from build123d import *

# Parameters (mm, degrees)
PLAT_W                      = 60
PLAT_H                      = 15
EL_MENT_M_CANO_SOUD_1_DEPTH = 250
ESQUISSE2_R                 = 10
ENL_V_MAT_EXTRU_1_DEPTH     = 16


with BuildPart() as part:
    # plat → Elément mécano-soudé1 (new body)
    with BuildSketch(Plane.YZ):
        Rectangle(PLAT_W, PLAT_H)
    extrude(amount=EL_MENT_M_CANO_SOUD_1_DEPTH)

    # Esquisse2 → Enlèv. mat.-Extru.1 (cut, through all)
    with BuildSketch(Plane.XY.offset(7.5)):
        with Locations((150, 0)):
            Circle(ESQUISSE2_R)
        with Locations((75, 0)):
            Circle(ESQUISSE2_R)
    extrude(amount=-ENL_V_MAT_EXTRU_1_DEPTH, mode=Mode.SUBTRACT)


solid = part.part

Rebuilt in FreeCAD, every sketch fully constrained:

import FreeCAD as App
import Part
import Sketcher

V = App.Vector


def add_polygon(sketch, points):
    """Adds a closed chain of lines whose ends are joined by coincident constraints."""
    first, n = sketch.GeometryCount, len(points)
    for a, b in zip(points, points[1:] + points[:1]):
        sketch.addGeometry(Part.LineSegment(App.Vector(*a, 0), App.Vector(*b, 0)), False)
    for i in range(n):
        sketch.addConstraint(Sketcher.Constraint("Coincident", first + i, 2, first + (i + 1) % n, 1))

doc = App.newDocument("Part")
params = doc.addObject("Spreadsheet::Sheet", "Params")
for row, (alias, value) in enumerate([
    ("sketch1_width", "60 mm"),
    ("sketch1_height", "15 mm"),
    ("pad1_length", "250 mm"),
    ("sketch2_diameter", "20 mm"),
], start=1):
    params.set(f"A{row}", alias)
    params.set(f"B{row}", "=" + value)
    params.setAlias(f"B{row}", alias)

body = doc.addObject("PartDesign::Body", "Body")

sketch1 = body.newObject("Sketcher::SketchObject", "Sketch")
sketch1.AttachmentSupport = (doc.getObject("YZ_Plane"), [""])
sketch1.MapMode = "FlatFace"
add_polygon(sketch1, [(-30, 8), (-30, -8), (30, -8), (30, 8)])
sketch1.addConstraint([
    Sketcher.Constraint("Vertical", 0),
    Sketcher.Constraint("Horizontal", 1),
    Sketcher.Constraint("Vertical", 2),
    Sketcher.Constraint("Horizontal", 3),
    Sketcher.Constraint("Symmetric", 0, 2, 2, 2, -1, 1),
    Sketcher.Constraint("DistanceX", 1, 1, 1, 2, 60.0),
    Sketcher.Constraint("DistanceY", 0, 2, 0, 1, 15.0),
])
sketch1.setExpression("Constraints[9]", "Params.sketch1_width")
sketch1.setExpression("Constraints[10]", "Params.sketch1_height")
pad1 = body.newObject("PartDesign::Pad", "Pad")
pad1.Profile = sketch1
pad1.setExpression("Length", "Params.pad1_length")

sketch2 = body.newObject("Sketcher::SketchObject", "Sketch001")
sketch2.AttachmentSupport = (doc.getObject("XY_Plane"), [""])
sketch2.MapMode = "FlatFace"
sketch2.AttachmentOffset = App.Placement(V(0, 0, 7.5), App.Rotation())
sketch2.addGeometry([
    Part.Circle(V(150, 0, 0), V(0, 0, 1), 10),
    Part.Circle(V(75, 0, 0), V(0, 0, 1), 10),
], False)
sketch2.addConstraint([
    Sketcher.Constraint("Equal", 0, 1),
    Sketcher.Constraint("PointOnObject", 0, 3, -1),
    Sketcher.Constraint("PointOnObject", 1, 3, -1),
    Sketcher.Constraint("Diameter", 0, 20.0),
    Sketcher.Constraint("DistanceX", -1, 1, 0, 3, 150.0),
    Sketcher.Constraint("DistanceX", -1, 1, 1, 3, 75.0),
])
sketch2.setExpression("Constraints[3]", "Params.sketch2_diameter")
pocket1 = body.newObject("PartDesign::Pocket", "Pocket")
pocket1.Profile = sketch2
pocket1.Type = "ThroughAll"

doc.recompute()
